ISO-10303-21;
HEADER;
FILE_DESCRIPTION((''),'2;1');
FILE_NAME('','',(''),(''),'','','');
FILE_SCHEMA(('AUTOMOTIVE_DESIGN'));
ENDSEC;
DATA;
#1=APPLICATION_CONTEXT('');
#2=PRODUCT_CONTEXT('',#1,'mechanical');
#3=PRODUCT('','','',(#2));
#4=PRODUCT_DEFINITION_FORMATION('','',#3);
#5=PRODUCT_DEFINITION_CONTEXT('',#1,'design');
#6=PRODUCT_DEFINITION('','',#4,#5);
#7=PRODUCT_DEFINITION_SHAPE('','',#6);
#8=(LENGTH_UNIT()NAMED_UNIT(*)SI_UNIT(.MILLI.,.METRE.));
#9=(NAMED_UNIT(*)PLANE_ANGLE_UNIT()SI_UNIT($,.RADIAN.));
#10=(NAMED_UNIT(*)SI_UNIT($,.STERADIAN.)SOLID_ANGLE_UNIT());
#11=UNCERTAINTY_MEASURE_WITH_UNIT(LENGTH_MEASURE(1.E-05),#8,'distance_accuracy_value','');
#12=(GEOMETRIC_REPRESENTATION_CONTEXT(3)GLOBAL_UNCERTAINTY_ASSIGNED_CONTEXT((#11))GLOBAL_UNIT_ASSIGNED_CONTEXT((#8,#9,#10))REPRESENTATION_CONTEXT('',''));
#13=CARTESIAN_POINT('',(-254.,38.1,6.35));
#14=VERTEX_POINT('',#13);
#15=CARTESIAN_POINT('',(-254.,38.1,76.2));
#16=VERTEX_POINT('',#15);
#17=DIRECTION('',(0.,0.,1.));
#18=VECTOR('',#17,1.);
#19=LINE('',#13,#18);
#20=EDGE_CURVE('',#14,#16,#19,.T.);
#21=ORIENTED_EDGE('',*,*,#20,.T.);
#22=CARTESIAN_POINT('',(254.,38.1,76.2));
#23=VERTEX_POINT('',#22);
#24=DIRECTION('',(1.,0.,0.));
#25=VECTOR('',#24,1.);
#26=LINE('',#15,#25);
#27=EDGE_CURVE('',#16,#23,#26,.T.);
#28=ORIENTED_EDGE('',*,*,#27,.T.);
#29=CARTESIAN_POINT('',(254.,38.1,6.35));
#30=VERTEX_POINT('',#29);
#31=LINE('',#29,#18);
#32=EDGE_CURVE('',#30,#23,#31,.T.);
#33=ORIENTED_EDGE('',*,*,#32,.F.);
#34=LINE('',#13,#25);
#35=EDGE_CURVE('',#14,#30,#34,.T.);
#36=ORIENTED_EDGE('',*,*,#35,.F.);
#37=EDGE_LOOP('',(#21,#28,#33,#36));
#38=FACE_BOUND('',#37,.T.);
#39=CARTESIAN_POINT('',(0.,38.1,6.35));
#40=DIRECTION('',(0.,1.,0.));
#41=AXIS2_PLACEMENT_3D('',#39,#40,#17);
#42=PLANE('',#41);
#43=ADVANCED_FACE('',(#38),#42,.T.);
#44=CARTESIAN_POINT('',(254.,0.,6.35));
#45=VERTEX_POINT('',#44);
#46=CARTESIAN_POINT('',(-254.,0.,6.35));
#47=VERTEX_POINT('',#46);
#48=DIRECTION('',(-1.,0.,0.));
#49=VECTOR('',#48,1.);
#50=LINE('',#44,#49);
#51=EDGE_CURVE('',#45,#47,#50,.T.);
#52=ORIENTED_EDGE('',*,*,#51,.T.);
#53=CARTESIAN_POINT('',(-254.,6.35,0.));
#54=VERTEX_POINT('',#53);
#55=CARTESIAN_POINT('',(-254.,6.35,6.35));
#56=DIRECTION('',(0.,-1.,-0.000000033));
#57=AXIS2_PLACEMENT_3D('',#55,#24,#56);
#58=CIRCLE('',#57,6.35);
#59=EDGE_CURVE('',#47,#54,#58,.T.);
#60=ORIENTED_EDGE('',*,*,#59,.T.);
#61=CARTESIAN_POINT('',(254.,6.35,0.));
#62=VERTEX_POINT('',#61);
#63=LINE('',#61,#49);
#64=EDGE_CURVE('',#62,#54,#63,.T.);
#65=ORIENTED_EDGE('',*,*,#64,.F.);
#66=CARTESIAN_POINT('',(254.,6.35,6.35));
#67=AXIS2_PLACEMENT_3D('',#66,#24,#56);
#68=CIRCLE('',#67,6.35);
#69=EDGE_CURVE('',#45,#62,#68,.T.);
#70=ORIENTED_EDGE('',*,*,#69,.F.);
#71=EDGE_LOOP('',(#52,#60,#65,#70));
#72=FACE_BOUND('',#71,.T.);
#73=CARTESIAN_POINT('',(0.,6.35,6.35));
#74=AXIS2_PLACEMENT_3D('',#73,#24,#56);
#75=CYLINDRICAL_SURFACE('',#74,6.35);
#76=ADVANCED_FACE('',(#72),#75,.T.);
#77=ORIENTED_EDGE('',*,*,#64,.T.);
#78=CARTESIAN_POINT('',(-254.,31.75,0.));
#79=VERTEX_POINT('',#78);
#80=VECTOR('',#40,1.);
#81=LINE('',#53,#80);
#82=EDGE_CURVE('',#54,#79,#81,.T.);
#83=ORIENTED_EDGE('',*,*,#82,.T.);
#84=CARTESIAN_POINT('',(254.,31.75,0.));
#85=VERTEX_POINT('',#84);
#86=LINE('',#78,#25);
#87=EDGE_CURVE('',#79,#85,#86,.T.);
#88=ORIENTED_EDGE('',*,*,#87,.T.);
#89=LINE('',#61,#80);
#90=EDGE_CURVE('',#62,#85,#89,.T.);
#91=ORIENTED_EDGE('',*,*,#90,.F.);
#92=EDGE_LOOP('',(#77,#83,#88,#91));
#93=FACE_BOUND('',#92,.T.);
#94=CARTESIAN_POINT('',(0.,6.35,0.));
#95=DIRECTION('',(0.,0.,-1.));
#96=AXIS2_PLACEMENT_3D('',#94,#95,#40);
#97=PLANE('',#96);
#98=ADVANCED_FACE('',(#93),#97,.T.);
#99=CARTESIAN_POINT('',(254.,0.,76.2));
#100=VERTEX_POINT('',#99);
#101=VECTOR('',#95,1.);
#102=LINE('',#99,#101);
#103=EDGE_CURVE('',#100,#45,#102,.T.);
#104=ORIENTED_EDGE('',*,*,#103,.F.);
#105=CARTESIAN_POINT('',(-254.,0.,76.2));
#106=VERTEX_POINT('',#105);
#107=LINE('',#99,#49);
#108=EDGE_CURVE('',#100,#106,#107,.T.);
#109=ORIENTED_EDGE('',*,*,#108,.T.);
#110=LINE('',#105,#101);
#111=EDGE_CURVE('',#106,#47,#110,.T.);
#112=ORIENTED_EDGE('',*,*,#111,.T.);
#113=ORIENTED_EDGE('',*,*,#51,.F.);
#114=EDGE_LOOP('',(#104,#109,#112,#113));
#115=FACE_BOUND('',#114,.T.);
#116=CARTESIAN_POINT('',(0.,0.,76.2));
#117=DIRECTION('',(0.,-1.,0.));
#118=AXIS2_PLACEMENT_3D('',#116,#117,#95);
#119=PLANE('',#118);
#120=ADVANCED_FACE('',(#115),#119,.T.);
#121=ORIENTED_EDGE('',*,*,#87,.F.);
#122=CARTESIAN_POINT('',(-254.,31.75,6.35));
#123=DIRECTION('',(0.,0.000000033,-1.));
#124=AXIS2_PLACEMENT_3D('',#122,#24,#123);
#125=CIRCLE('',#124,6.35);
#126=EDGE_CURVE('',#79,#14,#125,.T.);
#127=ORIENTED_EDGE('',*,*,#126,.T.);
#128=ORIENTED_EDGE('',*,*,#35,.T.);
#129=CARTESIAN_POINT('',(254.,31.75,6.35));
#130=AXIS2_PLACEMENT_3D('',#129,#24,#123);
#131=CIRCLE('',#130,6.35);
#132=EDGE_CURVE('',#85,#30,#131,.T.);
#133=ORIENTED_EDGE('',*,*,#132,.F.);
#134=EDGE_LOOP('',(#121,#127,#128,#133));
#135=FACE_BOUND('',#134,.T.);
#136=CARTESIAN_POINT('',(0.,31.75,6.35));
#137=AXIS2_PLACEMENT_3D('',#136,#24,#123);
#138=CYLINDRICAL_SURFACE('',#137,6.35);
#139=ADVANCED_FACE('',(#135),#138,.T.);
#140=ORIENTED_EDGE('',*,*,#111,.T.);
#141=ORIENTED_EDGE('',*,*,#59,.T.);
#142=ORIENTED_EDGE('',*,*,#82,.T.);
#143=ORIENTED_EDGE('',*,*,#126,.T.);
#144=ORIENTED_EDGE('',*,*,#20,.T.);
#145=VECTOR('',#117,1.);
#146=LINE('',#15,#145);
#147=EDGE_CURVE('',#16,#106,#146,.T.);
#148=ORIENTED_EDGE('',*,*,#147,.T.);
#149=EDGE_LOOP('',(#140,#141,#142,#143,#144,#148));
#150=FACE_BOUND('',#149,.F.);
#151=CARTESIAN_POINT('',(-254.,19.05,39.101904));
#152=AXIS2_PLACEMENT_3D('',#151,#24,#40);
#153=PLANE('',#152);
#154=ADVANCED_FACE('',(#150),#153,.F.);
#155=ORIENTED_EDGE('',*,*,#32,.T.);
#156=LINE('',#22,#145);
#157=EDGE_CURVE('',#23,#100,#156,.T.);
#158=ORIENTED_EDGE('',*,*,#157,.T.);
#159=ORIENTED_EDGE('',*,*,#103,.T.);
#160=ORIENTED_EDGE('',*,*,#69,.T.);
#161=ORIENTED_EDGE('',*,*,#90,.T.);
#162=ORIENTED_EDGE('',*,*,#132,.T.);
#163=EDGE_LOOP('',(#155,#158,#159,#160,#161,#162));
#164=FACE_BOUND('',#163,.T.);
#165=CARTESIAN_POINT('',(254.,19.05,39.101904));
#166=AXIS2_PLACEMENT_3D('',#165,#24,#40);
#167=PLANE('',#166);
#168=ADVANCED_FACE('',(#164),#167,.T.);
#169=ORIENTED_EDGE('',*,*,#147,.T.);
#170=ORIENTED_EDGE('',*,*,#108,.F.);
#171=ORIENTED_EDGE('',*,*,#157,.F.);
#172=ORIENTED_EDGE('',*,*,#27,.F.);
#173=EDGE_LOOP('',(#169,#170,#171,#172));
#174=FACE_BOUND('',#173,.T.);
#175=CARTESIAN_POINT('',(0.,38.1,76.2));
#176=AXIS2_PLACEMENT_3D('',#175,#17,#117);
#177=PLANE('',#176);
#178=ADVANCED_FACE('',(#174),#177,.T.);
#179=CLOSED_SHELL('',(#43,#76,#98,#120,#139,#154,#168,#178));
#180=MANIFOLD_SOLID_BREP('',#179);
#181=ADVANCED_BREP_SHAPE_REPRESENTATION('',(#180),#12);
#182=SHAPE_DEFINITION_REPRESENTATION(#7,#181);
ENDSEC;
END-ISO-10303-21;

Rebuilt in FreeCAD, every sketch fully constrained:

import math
import FreeCAD as App
import Part
import Sketcher
from FreeCAD import Vector
Q = App.Units.Quantity

doc = App.newDocument("Part")
body = doc.addObject("PartDesign::Body", "Body")

# Sketch on YZ plane
sketch1 = body.newObject("Sketcher::SketchObject", "Sketch")
sketch1.AttachmentSupport = (doc.getObject("YZ_Plane"), [""])
sketch1.MapMode = "FlatFace"
sketch1.addGeometry([
    Part.LineSegment(Vector(6, 0, 0), Vector(32, 0, 0)),  # 0
    Part.ArcOfCircle(Part.Circle(Vector(32, 6, 0), Vector(0, 0, 1), 6), math.radians(-90), math.radians(0)),  # 1
    Part.LineSegment(Vector(38, 6, 0), Vector(38, 76, 0)),  # 2
    Part.LineSegment(Vector(38, 76, 0), Vector(0, 76, 0)),  # 3
    Part.LineSegment(Vector(0, 76, 0), Vector(0, 6, 0)),  # 4
    Part.ArcOfCircle(Part.Circle(Vector(6, 6, 0), Vector(0, 0, 1), 6), math.radians(-180), math.radians(-90)),  # 5
], False)
sketch1.addConstraint([
    Sketcher.Constraint("Tangent", 0, 2, 1, 1),
    Sketcher.Constraint("Tangent", 1, 2, 2, 1),
    Sketcher.Constraint("Coincident", 2, 2, 3, 1),
    Sketcher.Constraint("Coincident", 3, 2, 4, 1),
    Sketcher.Constraint("Tangent", 4, 2, 5, 1),
    Sketcher.Constraint("Tangent", 5, 2, 0, 1),
    Sketcher.Constraint("Horizontal", 0),
    Sketcher.Constraint("Vertical", 2),
    Sketcher.Constraint("Horizontal", 3),
    Sketcher.Constraint("Vertical", 4),
    Sketcher.Constraint("Equal", 1, 5),
    Sketcher.Constraint("PointOnObject", 0, 2, -1),
    Sketcher.Constraint("PointOnObject", 3, 2, -2),
    Sketcher.Constraint("DistanceX", 0, 1, 0, 2, Q("1 in")),
    Sketcher.Constraint("Radius", 1, Q("0.25 in")),
    Sketcher.Constraint("DistanceY", -1, 1, 2, 2, Q("3 in")),
])
pad1 = body.newObject("PartDesign::Pad", "Pad")
pad1.Profile = sketch1
pad1.Length = Q("20 in")
pad1.Midplane = True

doc.recompute()
